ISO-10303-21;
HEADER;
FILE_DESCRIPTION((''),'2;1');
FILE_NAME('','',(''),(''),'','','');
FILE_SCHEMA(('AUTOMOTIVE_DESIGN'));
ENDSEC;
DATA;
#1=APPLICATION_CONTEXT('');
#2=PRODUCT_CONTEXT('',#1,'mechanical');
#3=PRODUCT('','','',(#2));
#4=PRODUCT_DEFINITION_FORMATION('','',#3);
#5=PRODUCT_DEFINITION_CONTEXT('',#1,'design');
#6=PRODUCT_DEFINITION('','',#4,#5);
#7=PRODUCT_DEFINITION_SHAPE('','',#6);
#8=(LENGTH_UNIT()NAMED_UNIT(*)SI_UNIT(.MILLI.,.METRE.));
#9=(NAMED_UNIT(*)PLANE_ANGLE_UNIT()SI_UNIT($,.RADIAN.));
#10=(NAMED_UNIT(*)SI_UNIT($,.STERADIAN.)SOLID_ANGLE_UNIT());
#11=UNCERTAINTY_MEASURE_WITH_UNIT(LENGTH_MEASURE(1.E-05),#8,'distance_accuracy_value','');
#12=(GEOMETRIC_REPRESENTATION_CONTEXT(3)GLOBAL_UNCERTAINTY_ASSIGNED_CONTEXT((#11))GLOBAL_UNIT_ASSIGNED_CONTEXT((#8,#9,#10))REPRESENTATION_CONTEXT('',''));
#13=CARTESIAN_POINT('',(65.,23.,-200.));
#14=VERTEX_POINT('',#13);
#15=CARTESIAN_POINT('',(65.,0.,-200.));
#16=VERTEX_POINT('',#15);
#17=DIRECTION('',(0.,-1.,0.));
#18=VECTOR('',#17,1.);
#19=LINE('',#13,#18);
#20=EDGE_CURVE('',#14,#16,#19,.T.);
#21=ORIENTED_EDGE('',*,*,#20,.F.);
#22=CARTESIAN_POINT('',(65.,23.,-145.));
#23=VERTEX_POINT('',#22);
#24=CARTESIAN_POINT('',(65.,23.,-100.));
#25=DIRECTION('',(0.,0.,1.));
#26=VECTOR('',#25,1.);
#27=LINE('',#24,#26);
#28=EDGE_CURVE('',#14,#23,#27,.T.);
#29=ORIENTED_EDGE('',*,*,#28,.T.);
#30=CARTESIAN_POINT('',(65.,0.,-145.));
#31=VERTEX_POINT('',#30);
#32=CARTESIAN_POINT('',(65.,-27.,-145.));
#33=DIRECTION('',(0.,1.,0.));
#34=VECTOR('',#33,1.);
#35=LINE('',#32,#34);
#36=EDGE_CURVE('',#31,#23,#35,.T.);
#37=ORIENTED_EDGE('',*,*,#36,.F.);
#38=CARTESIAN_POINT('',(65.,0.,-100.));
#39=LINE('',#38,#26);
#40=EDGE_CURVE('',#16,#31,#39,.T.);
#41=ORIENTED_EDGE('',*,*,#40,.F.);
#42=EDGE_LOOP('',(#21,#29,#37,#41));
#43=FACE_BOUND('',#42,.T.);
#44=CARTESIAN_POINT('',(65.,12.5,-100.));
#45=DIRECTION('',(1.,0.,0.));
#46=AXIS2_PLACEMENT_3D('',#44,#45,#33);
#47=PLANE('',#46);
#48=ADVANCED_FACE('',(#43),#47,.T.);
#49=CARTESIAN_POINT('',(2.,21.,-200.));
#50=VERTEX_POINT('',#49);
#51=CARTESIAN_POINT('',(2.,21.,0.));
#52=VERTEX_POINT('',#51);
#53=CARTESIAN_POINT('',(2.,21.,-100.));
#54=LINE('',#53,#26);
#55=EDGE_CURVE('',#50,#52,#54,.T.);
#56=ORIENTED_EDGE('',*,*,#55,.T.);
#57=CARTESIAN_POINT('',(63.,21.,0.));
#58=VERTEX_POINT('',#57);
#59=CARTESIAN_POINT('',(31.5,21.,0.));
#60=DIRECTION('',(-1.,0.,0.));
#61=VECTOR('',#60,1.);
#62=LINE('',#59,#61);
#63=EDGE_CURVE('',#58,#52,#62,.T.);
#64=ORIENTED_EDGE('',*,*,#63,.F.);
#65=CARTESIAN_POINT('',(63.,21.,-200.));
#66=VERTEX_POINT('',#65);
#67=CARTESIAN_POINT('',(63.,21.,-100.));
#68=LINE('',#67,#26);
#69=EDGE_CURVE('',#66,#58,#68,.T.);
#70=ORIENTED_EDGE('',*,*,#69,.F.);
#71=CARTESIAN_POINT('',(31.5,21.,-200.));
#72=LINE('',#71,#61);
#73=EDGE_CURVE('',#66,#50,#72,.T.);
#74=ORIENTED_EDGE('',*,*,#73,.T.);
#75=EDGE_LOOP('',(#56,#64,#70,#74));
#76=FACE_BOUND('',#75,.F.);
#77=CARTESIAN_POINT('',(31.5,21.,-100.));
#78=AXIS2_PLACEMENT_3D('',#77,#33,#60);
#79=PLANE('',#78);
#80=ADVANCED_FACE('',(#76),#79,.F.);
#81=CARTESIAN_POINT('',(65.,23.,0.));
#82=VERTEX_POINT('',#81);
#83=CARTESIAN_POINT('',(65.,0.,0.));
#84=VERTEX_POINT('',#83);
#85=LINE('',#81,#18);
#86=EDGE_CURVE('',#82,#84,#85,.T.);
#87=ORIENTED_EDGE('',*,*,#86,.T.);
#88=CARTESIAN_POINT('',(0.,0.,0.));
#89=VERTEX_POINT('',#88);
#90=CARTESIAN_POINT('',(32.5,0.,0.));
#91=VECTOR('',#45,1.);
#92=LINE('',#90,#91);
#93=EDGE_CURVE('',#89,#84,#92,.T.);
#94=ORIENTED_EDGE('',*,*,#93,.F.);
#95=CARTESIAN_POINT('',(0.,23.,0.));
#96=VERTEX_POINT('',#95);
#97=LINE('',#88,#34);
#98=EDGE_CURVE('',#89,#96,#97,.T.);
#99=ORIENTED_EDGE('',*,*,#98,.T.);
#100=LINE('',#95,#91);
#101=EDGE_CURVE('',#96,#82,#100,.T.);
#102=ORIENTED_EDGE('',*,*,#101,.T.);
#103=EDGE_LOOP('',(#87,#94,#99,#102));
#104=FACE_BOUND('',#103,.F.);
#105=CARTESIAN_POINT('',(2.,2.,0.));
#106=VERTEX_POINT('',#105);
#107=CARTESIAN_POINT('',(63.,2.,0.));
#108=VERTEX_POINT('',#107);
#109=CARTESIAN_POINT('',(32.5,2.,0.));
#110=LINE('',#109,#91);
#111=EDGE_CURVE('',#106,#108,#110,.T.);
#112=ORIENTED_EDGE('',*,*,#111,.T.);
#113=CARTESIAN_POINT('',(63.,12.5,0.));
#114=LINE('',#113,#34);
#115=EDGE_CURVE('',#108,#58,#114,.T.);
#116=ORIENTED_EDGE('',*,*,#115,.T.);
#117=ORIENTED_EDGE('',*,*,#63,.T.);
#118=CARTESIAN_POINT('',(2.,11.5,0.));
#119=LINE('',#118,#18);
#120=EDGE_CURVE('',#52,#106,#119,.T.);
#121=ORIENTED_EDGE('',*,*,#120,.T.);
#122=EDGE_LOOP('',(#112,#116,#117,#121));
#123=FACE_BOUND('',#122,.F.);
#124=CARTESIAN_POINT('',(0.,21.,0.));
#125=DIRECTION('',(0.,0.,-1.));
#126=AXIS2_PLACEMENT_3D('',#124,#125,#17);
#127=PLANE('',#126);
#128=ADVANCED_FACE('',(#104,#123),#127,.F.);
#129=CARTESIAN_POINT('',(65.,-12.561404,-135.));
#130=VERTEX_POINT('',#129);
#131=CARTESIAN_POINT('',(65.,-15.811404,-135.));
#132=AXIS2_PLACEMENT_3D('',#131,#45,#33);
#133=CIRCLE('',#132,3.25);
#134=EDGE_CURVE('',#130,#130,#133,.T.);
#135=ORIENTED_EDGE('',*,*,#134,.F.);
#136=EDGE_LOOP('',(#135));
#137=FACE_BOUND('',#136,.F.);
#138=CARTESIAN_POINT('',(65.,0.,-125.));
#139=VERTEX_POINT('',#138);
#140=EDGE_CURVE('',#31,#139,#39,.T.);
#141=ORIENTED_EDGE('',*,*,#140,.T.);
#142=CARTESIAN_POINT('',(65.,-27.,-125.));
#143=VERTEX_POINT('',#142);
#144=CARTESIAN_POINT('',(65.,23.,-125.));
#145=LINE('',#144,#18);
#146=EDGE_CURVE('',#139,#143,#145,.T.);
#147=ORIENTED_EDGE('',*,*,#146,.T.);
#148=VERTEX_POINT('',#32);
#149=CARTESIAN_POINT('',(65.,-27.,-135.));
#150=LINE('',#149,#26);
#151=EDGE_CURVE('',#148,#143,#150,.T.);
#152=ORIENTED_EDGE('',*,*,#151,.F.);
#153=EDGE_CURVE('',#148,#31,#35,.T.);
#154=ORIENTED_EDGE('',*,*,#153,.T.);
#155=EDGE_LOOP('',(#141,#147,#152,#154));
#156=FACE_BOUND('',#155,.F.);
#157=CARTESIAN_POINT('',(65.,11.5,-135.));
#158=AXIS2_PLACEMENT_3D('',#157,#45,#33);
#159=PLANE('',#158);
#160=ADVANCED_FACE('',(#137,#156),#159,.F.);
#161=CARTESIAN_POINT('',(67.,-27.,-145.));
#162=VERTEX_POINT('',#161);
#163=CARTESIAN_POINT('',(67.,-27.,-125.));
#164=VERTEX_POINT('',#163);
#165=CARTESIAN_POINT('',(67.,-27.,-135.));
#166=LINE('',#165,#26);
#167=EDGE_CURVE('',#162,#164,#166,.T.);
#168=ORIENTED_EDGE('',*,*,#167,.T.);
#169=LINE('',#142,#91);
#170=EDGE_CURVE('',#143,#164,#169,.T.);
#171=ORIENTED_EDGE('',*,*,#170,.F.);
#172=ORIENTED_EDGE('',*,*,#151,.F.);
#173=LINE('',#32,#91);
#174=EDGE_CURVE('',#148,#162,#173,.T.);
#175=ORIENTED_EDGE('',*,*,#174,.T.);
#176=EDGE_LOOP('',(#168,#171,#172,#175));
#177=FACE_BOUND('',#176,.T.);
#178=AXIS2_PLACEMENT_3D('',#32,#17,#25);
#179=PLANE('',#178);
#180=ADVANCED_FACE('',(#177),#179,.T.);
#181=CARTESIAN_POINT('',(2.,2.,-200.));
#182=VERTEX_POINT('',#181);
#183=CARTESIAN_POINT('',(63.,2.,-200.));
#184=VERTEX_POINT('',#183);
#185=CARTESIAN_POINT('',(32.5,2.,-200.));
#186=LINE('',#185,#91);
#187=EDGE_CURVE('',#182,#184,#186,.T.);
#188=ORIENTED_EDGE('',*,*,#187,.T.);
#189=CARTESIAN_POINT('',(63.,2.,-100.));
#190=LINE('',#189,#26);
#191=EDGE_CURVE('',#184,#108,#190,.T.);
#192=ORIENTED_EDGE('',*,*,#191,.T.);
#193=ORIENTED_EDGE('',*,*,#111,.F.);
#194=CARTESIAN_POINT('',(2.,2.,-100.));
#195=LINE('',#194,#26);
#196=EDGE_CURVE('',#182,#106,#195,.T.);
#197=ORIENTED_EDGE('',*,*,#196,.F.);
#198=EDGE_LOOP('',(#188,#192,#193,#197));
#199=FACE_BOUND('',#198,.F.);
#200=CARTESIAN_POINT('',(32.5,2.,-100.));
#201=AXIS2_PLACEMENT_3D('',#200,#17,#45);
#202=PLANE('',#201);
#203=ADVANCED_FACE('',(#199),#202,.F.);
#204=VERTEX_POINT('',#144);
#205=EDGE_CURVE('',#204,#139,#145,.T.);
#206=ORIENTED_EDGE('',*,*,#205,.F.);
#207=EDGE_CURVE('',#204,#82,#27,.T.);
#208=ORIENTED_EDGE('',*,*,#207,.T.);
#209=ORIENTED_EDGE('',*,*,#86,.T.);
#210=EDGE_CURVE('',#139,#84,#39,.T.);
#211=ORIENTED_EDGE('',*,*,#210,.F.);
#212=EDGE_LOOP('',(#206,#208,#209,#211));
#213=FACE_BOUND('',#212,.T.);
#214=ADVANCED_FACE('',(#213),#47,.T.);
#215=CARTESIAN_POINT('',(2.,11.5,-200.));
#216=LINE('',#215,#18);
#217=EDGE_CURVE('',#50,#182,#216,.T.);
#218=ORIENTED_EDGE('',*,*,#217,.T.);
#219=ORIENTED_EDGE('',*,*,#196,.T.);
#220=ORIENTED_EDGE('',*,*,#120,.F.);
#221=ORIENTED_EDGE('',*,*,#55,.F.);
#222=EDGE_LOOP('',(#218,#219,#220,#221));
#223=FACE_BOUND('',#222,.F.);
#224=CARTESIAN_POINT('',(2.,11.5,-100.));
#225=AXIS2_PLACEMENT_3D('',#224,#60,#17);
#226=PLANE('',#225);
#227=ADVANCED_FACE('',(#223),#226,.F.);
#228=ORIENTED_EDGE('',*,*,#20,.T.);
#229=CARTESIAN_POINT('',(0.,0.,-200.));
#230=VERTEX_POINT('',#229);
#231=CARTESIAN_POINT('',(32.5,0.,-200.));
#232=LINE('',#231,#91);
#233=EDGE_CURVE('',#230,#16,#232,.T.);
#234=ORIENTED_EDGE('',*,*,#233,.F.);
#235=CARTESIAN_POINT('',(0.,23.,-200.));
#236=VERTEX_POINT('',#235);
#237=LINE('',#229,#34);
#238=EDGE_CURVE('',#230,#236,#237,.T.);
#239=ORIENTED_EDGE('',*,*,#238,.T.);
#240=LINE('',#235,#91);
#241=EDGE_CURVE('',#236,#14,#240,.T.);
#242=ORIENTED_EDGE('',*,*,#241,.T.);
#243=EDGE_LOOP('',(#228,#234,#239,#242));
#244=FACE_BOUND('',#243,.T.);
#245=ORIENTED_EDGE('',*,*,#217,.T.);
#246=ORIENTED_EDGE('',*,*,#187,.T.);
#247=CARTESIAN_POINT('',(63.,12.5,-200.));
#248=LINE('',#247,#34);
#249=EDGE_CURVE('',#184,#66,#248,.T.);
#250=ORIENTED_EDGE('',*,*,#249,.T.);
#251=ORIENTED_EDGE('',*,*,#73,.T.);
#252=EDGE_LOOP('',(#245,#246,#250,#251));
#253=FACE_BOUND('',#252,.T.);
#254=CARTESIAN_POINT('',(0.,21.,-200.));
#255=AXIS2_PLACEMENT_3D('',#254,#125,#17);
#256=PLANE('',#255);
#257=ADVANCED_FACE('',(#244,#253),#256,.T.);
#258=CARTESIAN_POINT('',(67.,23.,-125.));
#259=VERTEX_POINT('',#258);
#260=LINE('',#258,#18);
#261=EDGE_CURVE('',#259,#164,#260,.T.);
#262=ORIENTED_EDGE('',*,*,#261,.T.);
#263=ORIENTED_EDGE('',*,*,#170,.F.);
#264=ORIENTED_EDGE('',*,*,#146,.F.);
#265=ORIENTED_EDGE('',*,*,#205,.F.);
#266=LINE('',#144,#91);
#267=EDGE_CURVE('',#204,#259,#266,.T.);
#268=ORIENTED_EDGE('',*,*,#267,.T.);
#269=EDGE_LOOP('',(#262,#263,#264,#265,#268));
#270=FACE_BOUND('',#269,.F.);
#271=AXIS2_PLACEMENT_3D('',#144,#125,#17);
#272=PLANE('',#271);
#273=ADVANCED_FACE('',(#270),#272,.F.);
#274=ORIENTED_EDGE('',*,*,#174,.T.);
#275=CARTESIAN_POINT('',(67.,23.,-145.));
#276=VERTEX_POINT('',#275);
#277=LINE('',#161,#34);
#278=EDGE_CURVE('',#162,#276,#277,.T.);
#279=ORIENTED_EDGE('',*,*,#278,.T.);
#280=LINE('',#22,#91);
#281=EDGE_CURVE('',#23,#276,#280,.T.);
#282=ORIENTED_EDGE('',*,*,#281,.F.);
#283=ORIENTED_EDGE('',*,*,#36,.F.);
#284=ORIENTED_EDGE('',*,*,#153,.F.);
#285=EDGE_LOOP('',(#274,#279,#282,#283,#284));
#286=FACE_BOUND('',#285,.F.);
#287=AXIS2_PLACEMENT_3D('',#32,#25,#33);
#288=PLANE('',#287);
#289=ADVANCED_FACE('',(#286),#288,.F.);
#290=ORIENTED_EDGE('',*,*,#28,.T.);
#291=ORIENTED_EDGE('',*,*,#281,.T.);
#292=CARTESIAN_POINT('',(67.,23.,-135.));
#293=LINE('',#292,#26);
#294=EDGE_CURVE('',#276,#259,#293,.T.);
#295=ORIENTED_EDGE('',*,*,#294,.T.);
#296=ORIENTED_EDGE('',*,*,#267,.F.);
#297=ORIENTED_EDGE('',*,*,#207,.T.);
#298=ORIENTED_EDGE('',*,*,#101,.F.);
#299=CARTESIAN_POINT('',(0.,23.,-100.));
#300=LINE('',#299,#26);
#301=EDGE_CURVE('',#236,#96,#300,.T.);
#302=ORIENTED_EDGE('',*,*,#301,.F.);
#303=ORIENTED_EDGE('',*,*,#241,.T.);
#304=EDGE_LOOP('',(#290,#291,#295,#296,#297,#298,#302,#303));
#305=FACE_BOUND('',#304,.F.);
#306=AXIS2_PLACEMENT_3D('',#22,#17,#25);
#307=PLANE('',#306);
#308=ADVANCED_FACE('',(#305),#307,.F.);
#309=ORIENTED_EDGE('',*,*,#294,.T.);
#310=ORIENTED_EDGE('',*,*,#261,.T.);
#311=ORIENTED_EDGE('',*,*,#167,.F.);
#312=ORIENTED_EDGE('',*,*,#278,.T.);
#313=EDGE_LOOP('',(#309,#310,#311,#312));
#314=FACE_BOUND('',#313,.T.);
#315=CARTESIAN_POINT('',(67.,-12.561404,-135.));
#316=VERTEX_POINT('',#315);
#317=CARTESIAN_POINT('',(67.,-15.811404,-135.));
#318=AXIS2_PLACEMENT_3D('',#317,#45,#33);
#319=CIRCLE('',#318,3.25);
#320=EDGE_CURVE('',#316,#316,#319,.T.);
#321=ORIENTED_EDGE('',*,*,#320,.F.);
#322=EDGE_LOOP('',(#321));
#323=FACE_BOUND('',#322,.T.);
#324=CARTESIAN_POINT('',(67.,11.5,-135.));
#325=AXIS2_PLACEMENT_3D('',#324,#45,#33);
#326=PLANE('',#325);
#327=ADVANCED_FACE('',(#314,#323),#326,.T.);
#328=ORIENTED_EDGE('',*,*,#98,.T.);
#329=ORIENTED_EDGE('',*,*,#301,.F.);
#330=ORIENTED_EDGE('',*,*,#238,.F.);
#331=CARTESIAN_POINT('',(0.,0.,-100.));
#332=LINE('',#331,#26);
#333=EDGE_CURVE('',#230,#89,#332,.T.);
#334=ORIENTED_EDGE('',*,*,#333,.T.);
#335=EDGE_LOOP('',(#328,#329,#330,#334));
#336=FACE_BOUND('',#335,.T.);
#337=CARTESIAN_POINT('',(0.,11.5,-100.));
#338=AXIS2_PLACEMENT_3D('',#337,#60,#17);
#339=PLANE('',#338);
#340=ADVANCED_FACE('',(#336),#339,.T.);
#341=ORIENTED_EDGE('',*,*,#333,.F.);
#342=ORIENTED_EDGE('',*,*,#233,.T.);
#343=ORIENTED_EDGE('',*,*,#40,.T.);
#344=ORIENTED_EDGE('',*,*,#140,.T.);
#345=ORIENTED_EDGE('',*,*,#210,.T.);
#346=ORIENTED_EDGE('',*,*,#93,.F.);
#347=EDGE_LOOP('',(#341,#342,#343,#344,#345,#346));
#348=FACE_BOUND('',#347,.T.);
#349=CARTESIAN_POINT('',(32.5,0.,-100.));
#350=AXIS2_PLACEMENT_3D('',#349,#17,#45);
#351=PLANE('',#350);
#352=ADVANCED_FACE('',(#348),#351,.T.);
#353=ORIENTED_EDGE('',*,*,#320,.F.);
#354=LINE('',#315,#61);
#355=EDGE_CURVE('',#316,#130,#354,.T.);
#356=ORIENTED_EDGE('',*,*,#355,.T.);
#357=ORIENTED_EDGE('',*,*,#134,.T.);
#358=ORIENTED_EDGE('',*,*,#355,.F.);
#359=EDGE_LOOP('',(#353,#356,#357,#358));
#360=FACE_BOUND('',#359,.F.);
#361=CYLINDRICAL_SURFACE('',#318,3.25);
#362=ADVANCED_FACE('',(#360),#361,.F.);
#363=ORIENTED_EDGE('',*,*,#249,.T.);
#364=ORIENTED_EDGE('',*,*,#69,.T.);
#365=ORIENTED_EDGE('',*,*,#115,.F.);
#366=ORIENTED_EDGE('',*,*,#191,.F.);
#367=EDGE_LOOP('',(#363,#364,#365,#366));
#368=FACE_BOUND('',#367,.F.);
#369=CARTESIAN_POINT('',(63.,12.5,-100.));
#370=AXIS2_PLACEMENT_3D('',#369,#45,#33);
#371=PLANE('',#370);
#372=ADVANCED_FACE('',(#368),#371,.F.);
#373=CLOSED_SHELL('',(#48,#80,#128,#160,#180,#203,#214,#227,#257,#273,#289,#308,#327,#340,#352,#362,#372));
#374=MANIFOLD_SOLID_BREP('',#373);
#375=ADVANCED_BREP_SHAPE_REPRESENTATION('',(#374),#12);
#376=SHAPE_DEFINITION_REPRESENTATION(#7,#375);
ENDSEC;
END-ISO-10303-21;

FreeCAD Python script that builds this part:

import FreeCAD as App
import Part
import Sketcher

V = App.Vector


def add_polygon(sketch, points):
    """Adds a closed chain of lines whose ends are joined by coincident constraints."""
    first, n = sketch.GeometryCount, len(points)
    for a, b in zip(points, points[1:] + points[:1]):
        sketch.addGeometry(Part.LineSegment(App.Vector(*a, 0), App.Vector(*b, 0)), False)
    for i in range(n):
        sketch.addConstraint(Sketcher.Constraint("Coincident", first + i, 2, first + (i + 1) % n, 1))

doc = App.newDocument("Part")
body = doc.addObject("PartDesign::Body", "Body")

# Sketch on XZ plane
sketch1 = doc.addObject("Sketcher::SketchObject", "Sketch")
body.addObject(sketch1)
sketch1.AttachmentSupport = (doc.XZ_Plane, [""])
sketch1.MapMode = "FlatFace"
add_polygon(sketch1, [(0, 0), (0, -200), (65, -200), (65, 0)])  # lines 0-3
sketch1.addConstraint([
    Sketcher.Constraint("Vertical", 0),
    Sketcher.Constraint("Horizontal", 1),
    Sketcher.Constraint("Vertical", 2),
    Sketcher.Constraint("Horizontal", 3),
    Sketcher.Constraint("Coincident", 3, 2, -1, 1),
    Sketcher.Constraint("DistanceX", 1, 1, 1, 2, 65.0),
    Sketcher.Constraint("DistanceY", 0, 2, 0, 1, 200.0),
])
pad1 = doc.addObject("PartDesign::Pad", "Pad")
body.addObject(pad1)
pad1.Profile = sketch1
pad1.Length = 2
pad1.Reversed = True

# Sketch on YZ plane
sketch2 = doc.addObject("Sketcher::SketchObject", "Sketch001")
body.addObject(sketch2)
sketch2.AttachmentSupport = (doc.YZ_Plane, [""])
sketch2.MapMode = "FlatFace"
sketch2.AttachmentOffset = App.Placement(V(0, 0, 65), App.Rotation())
add_polygon(sketch2, [(2, 0), (2, -200), (23, -200), (23, 0)])  # lines 0-3
sketch2.addConstraint([
    Sketcher.Constraint("Vertical", 0),
    Sketcher.Constraint("Horizontal", 1),
    Sketcher.Constraint("Vertical", 2),
    Sketcher.Constraint("Horizontal", 3),
    Sketcher.Constraint("PointOnObject", 2, 2, -1),
    Sketcher.Constraint("DistanceX", 1, 1, 1, 2, 21.0),
    Sketcher.Constraint("DistanceY", 0, 2, 0, 1, 200.0),
    Sketcher.Constraint("DistanceX", -1, 1, 0, 2, 2.0),
])
pad2 = doc.addObject("PartDesign::Pad", "Pad001")
body.addObject(pad2)
pad2.Profile = sketch2
pad2.Length = 2
pad2.Reversed = True

# Sketch on XZ plane
sketch3 = doc.addObject("Sketcher::SketchObject", "Sketch002")
body.addObject(sketch3)
sketch3.AttachmentSupport = (doc.XZ_Plane, [""])
sketch3.MapMode = "FlatFace"
sketch3.AttachmentOffset = App.Placement(V(0, 0, -23), App.Rotation())
add_polygon(sketch3, [(63, 0), (63, -200), (0, -200), (0, 0)])  # lines 0-3
sketch3.addConstraint([
    Sketcher.Constraint("Vertical", 0),
    Sketcher.Constraint("Horizontal", 1),
    Sketcher.Constraint("Vertical", 2),
    Sketcher.Constraint("Horizontal", 3),
    Sketcher.Constraint("Coincident", 2, 2, -1, 1),
    Sketcher.Constraint("DistanceX", 1, 2, 1, 1, 63.0),
    Sketcher.Constraint("DistanceY", 0, 2, 0, 1, 200.0),
])
pad3 = doc.addObject("PartDesign::Pad", "Pad002")
body.addObject(pad3)
pad3.Profile = sketch3
pad3.Length = 2

# Sketch on YZ plane
sketch4 = doc.addObject("Sketcher::SketchObject", "Sketch003")
body.addObject(sketch4)
sketch4.AttachmentSupport = (doc.YZ_Plane, [""])
sketch4.MapMode = "FlatFace"
add_polygon(sketch4, [(21, 0), (21, -200), (2, -200), (2, 0)])  # lines 0-3
sketch4.addConstraint([
    Sketcher.Constraint("Vertical", 0),
    Sketcher.Constraint("Horizontal", 1),
    Sketcher.Constraint("Vertical", 2),
    Sketcher.Constraint("Horizontal", 3),
    Sketcher.Constraint("PointOnObject", 2, 2, -1),
    Sketcher.Constraint("DistanceX", 1, 2, 1, 1, 19.0),
    Sketcher.Constraint("DistanceY", 0, 2, 0, 1, 200.0),
    Sketcher.Constraint("DistanceX", -1, 1, 0, 2, 21.0),
])
pad4 = doc.addObject("PartDesign::Pad", "Pad003")
body.addObject(pad4)
pad4.Profile = sketch4
pad4.Length = 2

# Sketch on YZ plane
sketch5 = doc.addObject("Sketcher::SketchObject", "Sketch004")
body.addObject(sketch5)
sketch5.AttachmentSupport = (doc.YZ_Plane, [""])
sketch5.MapMode = "FlatFace"
sketch5.AttachmentOffset = App.Placement(V(0, 0, 65), App.Rotation())
add_polygon(sketch5, [(23, -145), (23, -125), (-27, -125), (-27, -145)])  # lines 0-3
sketch5.addConstraint([
    Sketcher.Constraint("Vertical", 0),
    Sketcher.Constraint("Horizontal", 1),
    Sketcher.Constraint("Vertical", 2),
    Sketcher.Constraint("Horizontal", 3),
    Sketcher.Constraint("DistanceX", 1, 2, 1, 1, 50.0),
    Sketcher.Constraint("DistanceY", 0, 1, 0, 2, 20.0),
    Sketcher.Constraint("DistanceX", -1, 1, 0, 2, 23.0),
    Sketcher.Constraint("DistanceY", 0, 2, -1, 1, 125.0),
])
pad5 = doc.addObject("PartDesign::Pad", "Pad004")
body.addObject(pad5)
pad5.Profile = sketch5
pad5.Length = 2

# Sketch on YZ plane
sketch6 = doc.addObject("Sketcher::SketchObject", "Sketch005")
body.addObject(sketch6)
sketch6.AttachmentSupport = (doc.YZ_Plane, [""])
sketch6.MapMode = "FlatFace"
sketch6.AttachmentOffset = App.Placement(V(0, 0, 67), App.Rotation())
sketch6.addGeometry(Part.Circle(V(-15.8, -135, 0), V(0, 0, 1), 3.2), False)
sketch6.addConstraint([
    Sketcher.Constraint("Diameter", 0, 6.5),
    Sketcher.Constraint("DistanceY", 0, 3, -1, 1, 135.0),
    Sketcher.Constraint("DistanceX", 0, 3, -1, 1, 15.811404),
])
pocket1 = doc.addObject("PartDesign::Pocket", "Pocket")
body.addObject(pocket1)
pocket1.Profile = sketch6
pocket1.Length = 2

doc.recompute()
